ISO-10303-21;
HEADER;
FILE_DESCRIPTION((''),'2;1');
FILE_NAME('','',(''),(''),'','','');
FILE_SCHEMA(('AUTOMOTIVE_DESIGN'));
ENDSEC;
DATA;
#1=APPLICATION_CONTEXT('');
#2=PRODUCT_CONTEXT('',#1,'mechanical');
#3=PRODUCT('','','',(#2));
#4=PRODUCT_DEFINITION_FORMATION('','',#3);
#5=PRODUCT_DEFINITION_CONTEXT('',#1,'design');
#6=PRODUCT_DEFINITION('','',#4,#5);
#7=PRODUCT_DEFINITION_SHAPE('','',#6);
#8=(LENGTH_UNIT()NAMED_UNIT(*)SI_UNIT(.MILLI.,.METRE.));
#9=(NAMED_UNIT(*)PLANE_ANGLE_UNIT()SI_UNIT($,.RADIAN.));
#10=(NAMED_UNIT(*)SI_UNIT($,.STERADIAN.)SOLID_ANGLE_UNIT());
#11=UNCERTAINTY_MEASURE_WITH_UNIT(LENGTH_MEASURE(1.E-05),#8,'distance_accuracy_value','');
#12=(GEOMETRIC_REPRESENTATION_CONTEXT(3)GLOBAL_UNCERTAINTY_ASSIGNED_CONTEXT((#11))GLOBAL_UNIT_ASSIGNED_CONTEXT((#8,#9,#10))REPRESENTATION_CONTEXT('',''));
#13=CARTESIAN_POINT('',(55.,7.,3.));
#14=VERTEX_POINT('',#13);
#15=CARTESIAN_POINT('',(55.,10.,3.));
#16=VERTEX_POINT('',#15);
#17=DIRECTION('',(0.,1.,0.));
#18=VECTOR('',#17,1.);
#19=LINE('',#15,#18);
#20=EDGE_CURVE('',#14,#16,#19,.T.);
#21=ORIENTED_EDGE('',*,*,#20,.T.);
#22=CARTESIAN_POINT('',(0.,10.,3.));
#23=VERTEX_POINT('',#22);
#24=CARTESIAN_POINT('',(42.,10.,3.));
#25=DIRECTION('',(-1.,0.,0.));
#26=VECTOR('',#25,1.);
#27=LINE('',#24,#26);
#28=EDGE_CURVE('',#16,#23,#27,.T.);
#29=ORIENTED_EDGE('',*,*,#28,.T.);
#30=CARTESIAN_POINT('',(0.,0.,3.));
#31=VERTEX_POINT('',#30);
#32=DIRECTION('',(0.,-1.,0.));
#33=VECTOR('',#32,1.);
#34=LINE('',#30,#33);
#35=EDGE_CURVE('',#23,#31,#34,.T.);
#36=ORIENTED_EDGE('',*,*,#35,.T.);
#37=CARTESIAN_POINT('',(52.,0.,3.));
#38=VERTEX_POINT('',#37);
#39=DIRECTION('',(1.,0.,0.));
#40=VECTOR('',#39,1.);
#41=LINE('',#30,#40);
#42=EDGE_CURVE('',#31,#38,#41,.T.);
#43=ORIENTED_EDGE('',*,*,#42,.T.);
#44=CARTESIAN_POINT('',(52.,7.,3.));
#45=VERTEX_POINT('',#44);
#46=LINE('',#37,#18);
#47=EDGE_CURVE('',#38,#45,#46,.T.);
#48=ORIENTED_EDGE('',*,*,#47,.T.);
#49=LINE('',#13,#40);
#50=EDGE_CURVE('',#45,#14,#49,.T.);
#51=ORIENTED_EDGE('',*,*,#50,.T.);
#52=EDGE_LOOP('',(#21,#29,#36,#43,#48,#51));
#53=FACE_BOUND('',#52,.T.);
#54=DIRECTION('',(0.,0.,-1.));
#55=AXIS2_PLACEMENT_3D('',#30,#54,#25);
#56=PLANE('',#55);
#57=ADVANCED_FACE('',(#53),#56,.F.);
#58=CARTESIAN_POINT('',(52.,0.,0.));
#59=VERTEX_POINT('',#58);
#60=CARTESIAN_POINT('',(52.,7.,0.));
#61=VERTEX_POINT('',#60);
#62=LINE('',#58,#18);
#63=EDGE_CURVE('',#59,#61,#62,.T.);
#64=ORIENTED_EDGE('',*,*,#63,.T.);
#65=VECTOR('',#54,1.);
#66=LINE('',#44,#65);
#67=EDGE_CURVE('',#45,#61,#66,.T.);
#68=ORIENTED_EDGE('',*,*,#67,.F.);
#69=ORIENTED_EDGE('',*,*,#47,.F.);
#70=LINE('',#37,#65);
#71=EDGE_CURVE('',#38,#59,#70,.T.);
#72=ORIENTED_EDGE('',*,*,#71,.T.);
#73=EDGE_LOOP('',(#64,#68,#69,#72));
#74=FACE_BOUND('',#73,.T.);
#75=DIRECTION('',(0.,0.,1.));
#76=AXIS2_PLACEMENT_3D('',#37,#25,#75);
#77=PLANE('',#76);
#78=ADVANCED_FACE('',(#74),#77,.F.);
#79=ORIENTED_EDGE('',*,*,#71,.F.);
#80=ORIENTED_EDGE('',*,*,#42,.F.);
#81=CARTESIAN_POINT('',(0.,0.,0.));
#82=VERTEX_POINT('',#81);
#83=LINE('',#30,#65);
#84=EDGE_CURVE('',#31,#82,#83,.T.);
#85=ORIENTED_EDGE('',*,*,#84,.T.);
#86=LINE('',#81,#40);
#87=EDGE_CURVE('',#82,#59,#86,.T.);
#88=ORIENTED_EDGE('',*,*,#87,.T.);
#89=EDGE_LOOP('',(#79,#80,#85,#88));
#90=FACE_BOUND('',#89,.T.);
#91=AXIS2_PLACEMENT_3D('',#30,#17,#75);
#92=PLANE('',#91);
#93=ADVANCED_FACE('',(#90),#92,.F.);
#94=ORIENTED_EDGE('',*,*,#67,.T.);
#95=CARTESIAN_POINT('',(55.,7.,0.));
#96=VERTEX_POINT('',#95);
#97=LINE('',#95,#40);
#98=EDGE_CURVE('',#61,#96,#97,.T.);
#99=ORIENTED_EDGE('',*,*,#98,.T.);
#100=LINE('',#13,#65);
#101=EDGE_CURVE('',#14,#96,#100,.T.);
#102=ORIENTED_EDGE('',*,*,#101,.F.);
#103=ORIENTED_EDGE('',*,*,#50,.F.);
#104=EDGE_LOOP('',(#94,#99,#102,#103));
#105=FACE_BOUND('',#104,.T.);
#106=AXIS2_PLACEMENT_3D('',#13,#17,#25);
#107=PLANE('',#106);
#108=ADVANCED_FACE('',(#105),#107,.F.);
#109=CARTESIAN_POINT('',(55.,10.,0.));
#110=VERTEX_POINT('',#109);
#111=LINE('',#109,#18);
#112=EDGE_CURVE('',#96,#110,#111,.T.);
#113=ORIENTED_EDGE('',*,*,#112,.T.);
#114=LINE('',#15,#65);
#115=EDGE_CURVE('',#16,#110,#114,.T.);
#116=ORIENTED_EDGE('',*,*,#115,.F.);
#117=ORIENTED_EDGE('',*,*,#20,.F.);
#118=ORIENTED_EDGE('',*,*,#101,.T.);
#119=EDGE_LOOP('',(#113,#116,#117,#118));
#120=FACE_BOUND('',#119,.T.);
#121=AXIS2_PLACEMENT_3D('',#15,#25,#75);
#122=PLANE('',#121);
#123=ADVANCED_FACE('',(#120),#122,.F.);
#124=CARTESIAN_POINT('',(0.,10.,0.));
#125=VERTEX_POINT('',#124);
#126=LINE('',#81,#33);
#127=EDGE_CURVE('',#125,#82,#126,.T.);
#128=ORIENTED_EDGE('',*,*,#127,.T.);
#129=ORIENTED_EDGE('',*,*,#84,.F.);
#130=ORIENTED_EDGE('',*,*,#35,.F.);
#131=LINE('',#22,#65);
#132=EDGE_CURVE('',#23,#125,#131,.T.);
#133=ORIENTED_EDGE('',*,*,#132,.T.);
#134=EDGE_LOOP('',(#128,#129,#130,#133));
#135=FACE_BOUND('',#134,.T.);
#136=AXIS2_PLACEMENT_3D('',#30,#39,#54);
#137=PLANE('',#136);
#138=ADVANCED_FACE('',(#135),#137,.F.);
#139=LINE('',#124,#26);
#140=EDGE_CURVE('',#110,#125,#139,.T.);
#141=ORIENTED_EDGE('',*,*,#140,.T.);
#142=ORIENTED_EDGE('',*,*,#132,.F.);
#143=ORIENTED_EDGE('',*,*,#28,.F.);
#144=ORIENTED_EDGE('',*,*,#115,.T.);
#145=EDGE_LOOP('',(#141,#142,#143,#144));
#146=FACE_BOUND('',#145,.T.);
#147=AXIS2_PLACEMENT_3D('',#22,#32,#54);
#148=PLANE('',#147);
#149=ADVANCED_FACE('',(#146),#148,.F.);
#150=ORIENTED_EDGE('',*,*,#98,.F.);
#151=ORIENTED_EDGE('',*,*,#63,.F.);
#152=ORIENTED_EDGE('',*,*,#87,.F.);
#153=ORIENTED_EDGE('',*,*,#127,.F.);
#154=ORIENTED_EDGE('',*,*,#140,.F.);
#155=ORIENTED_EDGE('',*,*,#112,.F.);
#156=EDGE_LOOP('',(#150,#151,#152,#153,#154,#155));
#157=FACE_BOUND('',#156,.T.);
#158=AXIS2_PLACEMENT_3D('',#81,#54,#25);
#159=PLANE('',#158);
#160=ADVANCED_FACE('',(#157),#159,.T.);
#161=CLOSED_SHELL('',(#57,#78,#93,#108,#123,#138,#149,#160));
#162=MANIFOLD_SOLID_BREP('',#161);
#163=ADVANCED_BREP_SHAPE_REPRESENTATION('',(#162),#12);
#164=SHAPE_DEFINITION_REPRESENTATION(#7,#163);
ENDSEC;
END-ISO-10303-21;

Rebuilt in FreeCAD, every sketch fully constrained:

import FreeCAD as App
import Part
import Sketcher


def add_polygon(sketch, points):
    """Adds a closed chain of lines whose ends are joined by coincident constraints."""
    first, n = sketch.GeometryCount, len(points)
    for a, b in zip(points, points[1:] + points[:1]):
        sketch.addGeometry(Part.LineSegment(App.Vector(*a, 0), App.Vector(*b, 0)), False)
    for i in range(n):
        sketch.addConstraint(Sketcher.Constraint("Coincident", first + i, 2, first + (i + 1) % n, 1))

doc = App.newDocument("Part")
body = doc.addObject("PartDesign::Body", "Body")

# Sketch on XY plane
sketch1 = body.newObject("Sketcher::SketchObject", "Sketch")
sketch1.AttachmentSupport = (doc.getObject("XY_Plane"), [""])
sketch1.MapMode = "FlatFace"
add_polygon(sketch1, [(55, 10), (0, 10), (0, 0), (52, 0), (52, 7), (55, 7)])  # lines 0-5
sketch1.addConstraint([
    Sketcher.Constraint("Horizontal", 0),
    Sketcher.Constraint("Vertical", 1),
    Sketcher.Constraint("Horizontal", 2),
    Sketcher.Constraint("Vertical", 3),
    Sketcher.Constraint("Horizontal", 4),
    Sketcher.Constraint("Vertical", 5),
    Sketcher.Constraint("Coincident", 1, 2, -1, 1),
    Sketcher.Constraint("Equal", 4, 5),
    Sketcher.Constraint("DistanceX", 0, 2, 0, 1, 55.0),
    Sketcher.Constraint("DistanceX", 2, 1, 2, 2, 52.0),
    Sketcher.Constraint("DistanceY", 1, 2, 1, 1, 10.0),
])
pad1 = body.newObject("PartDesign::Pad", "Pad")
pad1.Profile = sketch1
pad1.Length = 3

doc.recompute()
